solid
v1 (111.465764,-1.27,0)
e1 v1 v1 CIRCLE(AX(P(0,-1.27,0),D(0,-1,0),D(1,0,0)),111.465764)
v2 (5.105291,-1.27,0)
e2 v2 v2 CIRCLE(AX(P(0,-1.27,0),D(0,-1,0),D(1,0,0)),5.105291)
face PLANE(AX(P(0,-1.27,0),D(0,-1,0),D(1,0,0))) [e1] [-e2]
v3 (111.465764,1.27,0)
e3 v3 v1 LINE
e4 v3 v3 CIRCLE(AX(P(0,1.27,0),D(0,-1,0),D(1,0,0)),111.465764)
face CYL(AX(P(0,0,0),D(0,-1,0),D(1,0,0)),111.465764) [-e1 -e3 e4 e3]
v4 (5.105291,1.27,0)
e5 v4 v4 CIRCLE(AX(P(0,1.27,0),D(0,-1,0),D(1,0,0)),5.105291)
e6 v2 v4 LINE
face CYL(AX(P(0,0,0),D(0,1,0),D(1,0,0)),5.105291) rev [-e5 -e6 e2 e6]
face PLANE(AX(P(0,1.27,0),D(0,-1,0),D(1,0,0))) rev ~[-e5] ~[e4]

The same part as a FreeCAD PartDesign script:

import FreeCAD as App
import Part
import Sketcher
Q = App.Units.Quantity

doc = App.newDocument("Part")
body = doc.addObject("PartDesign::Body", "Body")

# Sketch on XZ plane
sketch1 = body.newObject("Sketcher::SketchObject", "Sketch")
sketch1.AttachmentSupport = (doc.getObject("XZ_Plane"), [""])
sketch1.MapMode = "FlatFace"
sketch1.addGeometry([
    Part.Circle(App.Vector(0, 0, 0), App.Vector(0, 0, 1), 111),
    Part.Circle(App.Vector(0, 0, 0), App.Vector(0, 0, 1), 5),
], False)
sketch1.addConstraint([
    Sketcher.Constraint("Coincident", 0, 3, -1, 1),
    Sketcher.Constraint("Coincident", 1, 3, -1, 1),
    Sketcher.Constraint("Diameter", 0, 222.931528),
    Sketcher.Constraint("Diameter", 1, 10.210582),
])
pad1 = body.newObject("PartDesign::Pad", "Pad")
pad1.Profile = sketch1
pad1.Length = Q("0.1 in")
pad1.Midplane = True

doc.recompute()
